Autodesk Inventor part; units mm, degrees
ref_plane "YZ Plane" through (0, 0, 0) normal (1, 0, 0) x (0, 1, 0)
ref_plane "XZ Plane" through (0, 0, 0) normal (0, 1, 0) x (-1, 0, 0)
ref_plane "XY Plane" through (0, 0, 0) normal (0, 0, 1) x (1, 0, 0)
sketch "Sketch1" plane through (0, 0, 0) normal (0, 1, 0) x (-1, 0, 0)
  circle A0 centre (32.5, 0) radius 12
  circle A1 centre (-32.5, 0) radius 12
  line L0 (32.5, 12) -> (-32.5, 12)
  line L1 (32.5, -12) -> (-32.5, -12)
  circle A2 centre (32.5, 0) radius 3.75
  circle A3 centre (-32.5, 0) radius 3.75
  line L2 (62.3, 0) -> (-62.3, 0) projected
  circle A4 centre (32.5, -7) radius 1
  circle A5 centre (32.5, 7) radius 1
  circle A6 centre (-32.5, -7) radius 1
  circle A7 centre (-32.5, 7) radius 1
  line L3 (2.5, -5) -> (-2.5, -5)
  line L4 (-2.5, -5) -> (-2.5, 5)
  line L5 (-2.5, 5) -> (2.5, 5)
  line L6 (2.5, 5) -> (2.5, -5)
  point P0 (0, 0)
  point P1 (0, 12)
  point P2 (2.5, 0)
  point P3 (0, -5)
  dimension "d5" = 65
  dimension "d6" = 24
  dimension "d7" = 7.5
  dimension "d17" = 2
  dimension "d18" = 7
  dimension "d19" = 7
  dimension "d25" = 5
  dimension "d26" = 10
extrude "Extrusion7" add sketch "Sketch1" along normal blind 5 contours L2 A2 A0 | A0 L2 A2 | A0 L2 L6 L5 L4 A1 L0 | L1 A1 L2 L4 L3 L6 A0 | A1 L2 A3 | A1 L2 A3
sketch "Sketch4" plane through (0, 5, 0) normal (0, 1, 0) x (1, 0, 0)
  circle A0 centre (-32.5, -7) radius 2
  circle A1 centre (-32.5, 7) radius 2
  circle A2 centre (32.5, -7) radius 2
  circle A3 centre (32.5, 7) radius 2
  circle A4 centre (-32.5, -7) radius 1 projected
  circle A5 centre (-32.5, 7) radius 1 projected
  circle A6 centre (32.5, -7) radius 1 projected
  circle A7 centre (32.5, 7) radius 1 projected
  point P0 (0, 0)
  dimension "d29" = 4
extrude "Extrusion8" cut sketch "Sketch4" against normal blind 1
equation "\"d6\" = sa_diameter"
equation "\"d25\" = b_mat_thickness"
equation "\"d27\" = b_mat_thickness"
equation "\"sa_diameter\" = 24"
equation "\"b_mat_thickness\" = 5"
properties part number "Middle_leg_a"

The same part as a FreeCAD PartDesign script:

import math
import FreeCAD as App
import Part
import Sketcher

doc = App.newDocument("Part")
body = doc.addObject("PartDesign::Body", "Body")

sketch1 = doc.addObject("Sketcher::SketchObject", "Sketch")
body.addObject(sketch1)
sketch1.AttachmentSupport = (doc.XZ_Plane, [""])
sketch1.MapMode = "FlatFace"
sketch1.addGeometry(Part.LineSegment(App.Vector(-32.5, 12, 0), App.Vector(32.5, 12, 0)), False)
sketch1.addGeometry(Part.ArcOfCircle(Part.Circle(App.Vector(32.5, 0, 0), App.Vector(0, 0, 1), 12), math.radians(-90), math.radians(90)), False)
sketch1.addGeometry(Part.LineSegment(App.Vector(32.5, -12, 0), App.Vector(-32.5, -12, 0)), False)
sketch1.addGeometry(Part.ArcOfCircle(Part.Circle(App.Vector(-32.5, 0, 0), App.Vector(0, 0, 1), 12), math.radians(90), math.radians(270)), False)
sketch1.addGeometry(Part.Circle(App.Vector(-32.5, 0, 0), App.Vector(0, 0, 1), 3.75), False)
sketch1.addGeometry(Part.Circle(App.Vector(-32.5, 7, 0), App.Vector(0, 0, 1), 1), False)
sketch1.addGeometry(Part.Circle(App.Vector(-32.5, -7, 0), App.Vector(0, 0, 1), 1), False)
sketch1.addGeometry(Part.LineSegment(App.Vector(-2.5, 5, 0), App.Vector(-2.5, -5, 0)), False)
sketch1.addGeometry(Part.LineSegment(App.Vector(-2.5, -5, 0), App.Vector(2.5, -5, 0)), False)
sketch1.addGeometry(Part.LineSegment(App.Vector(2.5, -5, 0), App.Vector(2.5, 5, 0)), False)
sketch1.addGeometry(Part.LineSegment(App.Vector(2.5, 5, 0), App.Vector(-2.5, 5, 0)), False)
sketch1.addGeometry(Part.Circle(App.Vector(32.5, 7, 0), App.Vector(0, 0, 1), 1), False)
sketch1.addGeometry(Part.Circle(App.Vector(32.5, 0, 0), App.Vector(0, 0, 1), 3.75), False)
sketch1.addGeometry(Part.Circle(App.Vector(32.5, -7, 0), App.Vector(0, 0, 1), 1), False)
sketch1.addConstraint(Sketcher.Constraint("Tangent", 0, 2, 1, 2))
sketch1.addConstraint(Sketcher.Constraint("Tangent", 1, 1, 2, 1))
sketch1.addConstraint(Sketcher.Constraint("Tangent", 2, 2, 3, 2))
sketch1.addConstraint(Sketcher.Constraint("Tangent", 3, 1, 0, 1))
sketch1.addConstraint(Sketcher.Constraint("Coincident", 7, 2, 8, 1))
sketch1.addConstraint(Sketcher.Constraint("Coincident", 8, 2, 9, 1))
sketch1.addConstraint(Sketcher.Constraint("Coincident", 9, 2, 10, 1))
sketch1.addConstraint(Sketcher.Constraint("Coincident", 10, 2, 7, 1))
sketch1.addConstraint(Sketcher.Constraint("Horizontal", 0))
sketch1.addConstraint(Sketcher.Constraint("Horizontal", 2))
sketch1.addConstraint(Sketcher.Constraint("Vertical", 7))
sketch1.addConstraint(Sketcher.Constraint("Horizontal", 8))
sketch1.addConstraint(Sketcher.Constraint("Vertical", 9))
sketch1.addConstraint(Sketcher.Constraint("Horizontal", 10))
sketch1.addConstraint(Sketcher.Constraint("Coincident", 4, 3, 3, 3))
sketch1.addConstraint(Sketcher.Constraint("Coincident", 12, 3, 1, 3))
sketch1.addConstraint(Sketcher.Constraint("Equal", 5, 6))
sketch1.addConstraint(Sketcher.Constraint("Equal", 6, 11))
sketch1.addConstraint(Sketcher.Constraint("Equal", 4, 12))
sketch1.addConstraint(Sketcher.Constraint("Equal", 11, 13))
sketch1.addConstraint(Sketcher.Constraint("Symmetric", 1, 3, 3, 3, -1, 1))
sketch1.addConstraint(Sketcher.Constraint("Symmetric", 6, 3, 11, 3, -1, 1))
sketch1.addConstraint(Sketcher.Constraint("Symmetric", 5, 3, 13, 3, -1, 1))
sketch1.addConstraint(Sketcher.Constraint("Symmetric", 7, 2, 9, 2, -1, 1))
sketch1.addConstraint(Sketcher.Constraint("Symmetric", 5, 3, 11, 3, -2))
sketch1.addConstraint(Sketcher.Constraint("Vertical", 4, 3, 5, 3))
sketch1.addConstraint(Sketcher.Constraint("Diameter", 5, 2.0))
sketch1.addConstraint(Sketcher.Constraint("Radius", 1, 12.0))
sketch1.addConstraint(Sketcher.Constraint("Diameter", 4, 7.5))
sketch1.addConstraint(Sketcher.Constraint("DistanceX", 0, 1, 0, 2, 65.0))
sketch1.addConstraint(Sketcher.Constraint("DistanceX", 8, 1, 8, 2, 5.0))
sketch1.addConstraint(Sketcher.Constraint("DistanceY", 7, 2, 7, 1, 10.0))
sketch1.addConstraint(Sketcher.Constraint("DistanceY", -1, 1, 5, 3, 7.0))
pad1 = doc.addObject("PartDesign::Pad", "Pad")
body.addObject(pad1)
pad1.Profile = sketch1
pad1.Length = 5
pad1.Reversed = True

sketch2 = doc.addObject("Sketcher::SketchObject", "Sketch001")
body.addObject(sketch2)
sketch2.AttachmentSupport = (doc.XZ_Plane, [""])
sketch2.MapMode = "FlatFace"
sketch2.AttachmentOffset = App.Placement(App.Vector(0, 0, -5), App.Rotation())
sketch2.addGeometry(Part.Circle(App.Vector(-32.5, 7, 0), App.Vector(0, 0, 1), 2), False)
sketch2.addGeometry(Part.Circle(App.Vector(-32.5, 7, 0), App.Vector(0, 0, 1), 1), False)
sketch2.addGeometry(Part.Circle(App.Vector(-32.5, -7, 0), App.Vector(0, 0, 1), 2), False)
sketch2.addGeometry(Part.Circle(App.Vector(-32.5, -7, 0), App.Vector(0, 0, 1), 1), False)
sketch2.addGeometry(Part.Circle(App.Vector(32.5, 7, 0), App.Vector(0, 0, 1), 2), False)
sketch2.addGeometry(Part.Circle(App.Vector(32.5, 7, 0), App.Vector(0, 0, 1), 1), False)
sketch2.addGeometry(Part.Circle(App.Vector(32.5, -7, 0), App.Vector(0, 0, 1), 2), False)
sketch2.addGeometry(Part.Circle(App.Vector(32.5, -7, 0), App.Vector(0, 0, 1), 1), False)
sketch2.addConstraint(Sketcher.Constraint("Coincident", 1, 3, 0, 3))
sketch2.addConstraint(Sketcher.Constraint("Coincident", 3, 3, 2, 3))
sketch2.addConstraint(Sketcher.Constraint("Coincident", 5, 3, 4, 3))
sketch2.addConstraint(Sketcher.Constraint("Coincident", 7, 3, 6, 3))
sketch2.addConstraint(Sketcher.Constraint("Equal", 0, 2))
sketch2.addConstraint(Sketcher.Constraint("Equal", 1, 3))
sketch2.addConstraint(Sketcher.Constraint("Equal", 2, 4))
sketch2.addConstraint(Sketcher.Constraint("Equal", 3, 5))
sketch2.addConstraint(Sketcher.Constraint("Equal", 4, 6))
sketch2.addConstraint(Sketcher.Constraint("Equal", 5, 7))
sketch2.addConstraint(Sketcher.Constraint("Symmetric", 2, 3, 4, 3, -1, 1))
sketch2.addConstraint(Sketcher.Constraint("Symmetric", 0, 3, 6, 3, -1, 1))
sketch2.addConstraint(Sketcher.Constraint("Symmetric", 0, 3, 4, 3, -2))
sketch2.addConstraint(Sketcher.Constraint("Diameter", 0, 4.0))
sketch2.addConstraint(Sketcher.Constraint("Diameter", 1, 2.0))
sketch2.addConstraint(Sketcher.Constraint("DistanceY", -1, 1, 0, 3, 7.0))
sketch2.addConstraint(Sketcher.Constraint("DistanceX", 0, 3, 4, 3, 65.0))
pocket1 = doc.addObject("PartDesign::Pocket", "Pocket")
body.addObject(pocket1)
pocket1.Profile = sketch2
pocket1.Length = 1
pocket1.Reversed = True

doc.recompute()
